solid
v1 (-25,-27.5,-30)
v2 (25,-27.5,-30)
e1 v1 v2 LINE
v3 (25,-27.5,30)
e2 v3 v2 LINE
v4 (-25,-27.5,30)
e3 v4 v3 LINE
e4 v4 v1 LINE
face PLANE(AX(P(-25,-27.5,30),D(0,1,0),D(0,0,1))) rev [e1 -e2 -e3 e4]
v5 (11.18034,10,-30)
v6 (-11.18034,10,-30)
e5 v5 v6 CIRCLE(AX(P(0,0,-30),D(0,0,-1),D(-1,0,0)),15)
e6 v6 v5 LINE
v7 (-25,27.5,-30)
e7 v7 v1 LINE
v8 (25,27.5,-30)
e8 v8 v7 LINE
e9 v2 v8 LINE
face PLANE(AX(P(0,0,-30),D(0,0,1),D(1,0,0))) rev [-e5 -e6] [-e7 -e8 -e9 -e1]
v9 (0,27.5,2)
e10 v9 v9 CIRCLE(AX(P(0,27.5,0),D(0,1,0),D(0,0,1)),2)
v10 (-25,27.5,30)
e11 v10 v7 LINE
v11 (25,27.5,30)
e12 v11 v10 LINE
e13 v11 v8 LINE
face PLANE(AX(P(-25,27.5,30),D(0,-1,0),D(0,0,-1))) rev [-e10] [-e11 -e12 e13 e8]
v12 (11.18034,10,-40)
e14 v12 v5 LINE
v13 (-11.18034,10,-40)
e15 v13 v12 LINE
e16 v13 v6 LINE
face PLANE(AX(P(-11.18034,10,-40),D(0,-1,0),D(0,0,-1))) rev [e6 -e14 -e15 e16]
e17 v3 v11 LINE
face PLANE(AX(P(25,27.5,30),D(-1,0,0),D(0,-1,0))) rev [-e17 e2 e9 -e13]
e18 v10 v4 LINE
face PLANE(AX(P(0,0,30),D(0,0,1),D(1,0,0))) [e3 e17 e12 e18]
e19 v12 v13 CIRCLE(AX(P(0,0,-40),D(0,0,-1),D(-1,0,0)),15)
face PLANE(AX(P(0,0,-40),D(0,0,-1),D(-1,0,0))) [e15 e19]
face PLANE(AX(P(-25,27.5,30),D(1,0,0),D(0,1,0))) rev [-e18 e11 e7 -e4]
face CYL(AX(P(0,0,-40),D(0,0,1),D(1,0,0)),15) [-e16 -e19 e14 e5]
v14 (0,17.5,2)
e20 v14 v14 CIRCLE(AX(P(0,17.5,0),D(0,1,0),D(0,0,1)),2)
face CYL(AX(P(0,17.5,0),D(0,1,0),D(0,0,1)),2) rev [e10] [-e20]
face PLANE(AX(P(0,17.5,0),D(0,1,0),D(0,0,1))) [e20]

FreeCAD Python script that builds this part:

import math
import FreeCAD as App
import Part
import Sketcher

V = App.Vector

doc = App.newDocument("Part")
body = doc.addObject("PartDesign::Body", "Body")

sketch1 = body.newObject("Sketcher::SketchObject", "Sketch")
sketch1.AttachmentSupport = (doc.getObject("XY_Plane"), [""])
sketch1.MapMode = "FlatFace"
sketch1.addGeometry(Part.LineSegment(V(-25, 28, 0), V(-25, -28, 0)), False)
sketch1.addGeometry(Part.LineSegment(V(-25, -28, 0), V(25, -28, 0)), False)
sketch1.addGeometry(Part.LineSegment(V(25, -28, 0), V(25, 28, 0)), False)
sketch1.addGeometry(Part.LineSegment(V(25, 28, 0), V(-25, 28, 0)), False)
sketch1.addConstraint(Sketcher.Constraint("Coincident", 0, 2, 1, 1))
sketch1.addConstraint(Sketcher.Constraint("Coincident", 1, 2, 2, 1))
sketch1.addConstraint(Sketcher.Constraint("Coincident", 2, 2, 3, 1))
sketch1.addConstraint(Sketcher.Constraint("Coincident", 3, 2, 0, 1))
sketch1.addConstraint(Sketcher.Constraint("Vertical", 0))
sketch1.addConstraint(Sketcher.Constraint("Horizontal", 1))
sketch1.addConstraint(Sketcher.Constraint("Vertical", 2))
sketch1.addConstraint(Sketcher.Constraint("Horizontal", 3))
sketch1.addConstraint(Sketcher.Constraint("Symmetric", 0, 2, 2, 2, -1, 1))
sketch1.addConstraint(Sketcher.Constraint("DistanceX", 1, 1, 1, 2, 50.0))
sketch1.addConstraint(Sketcher.Constraint("DistanceY", 0, 2, 0, 1, 55.0))
pad1 = body.newObject("PartDesign::Pad", "Pad")
pad1.Profile = sketch1
pad1.Length = 60
pad1.Midplane = True

sketch2 = body.newObject("Sketcher::SketchObject", "Sketch001")
sketch2.AttachmentSupport = (doc.getObject("XY_Plane"), [""])
sketch2.MapMode = "FlatFace"
sketch2.AttachmentOffset = App.Placement(V(0, 0, -30), App.Rotation())
sketch2.addGeometry(Part.LineSegment(V(-11, 10, 0), V(11, 10, 0)), False)
sketch2.addGeometry(Part.ArcOfCircle(Part.Circle(V(0, 0, 0), V(0, 0, 1), 15), math.radians(138), math.radians(402)), False)
sketch2.addConstraint(Sketcher.Constraint("Coincident", 0, 1, 1, 1))
sketch2.addConstraint(Sketcher.Constraint("Coincident", 1, 2, 0, 2))
sketch2.addConstraint(Sketcher.Constraint("Horizontal", 0))
sketch2.addConstraint(Sketcher.Constraint("Coincident", 1, 3, -1, 1))
sketch2.addConstraint(Sketcher.Constraint("Radius", 1, 15.0))
sketch2.addConstraint(Sketcher.Constraint("DistanceY", -1, 1, 0, 1, 10.0))
pad2 = body.newObject("PartDesign::Pad", "Pad001")
pad2.Profile = sketch2
pad2.Length = 10
pad2.Reversed = True

sketch3 = body.newObject("Sketcher::SketchObject", "Sketch002")
sketch3.AttachmentSupport = (doc.getObject("XZ_Plane"), [""])
sketch3.MapMode = "FlatFace"
sketch3.AttachmentOffset = App.Placement(V(0, 0, -27.5), App.Rotation())
sketch3.addGeometry(Part.Circle(V(0, 0, 0), V(0, 0, 1), 2), False)
sketch3.addConstraint(Sketcher.Constraint("Coincident", 0, 3, -1, 1))
sketch3.addConstraint(Sketcher.Constraint("Diameter", 0, 4.0))
pocket1 = body.newObject("PartDesign::Pocket", "Pocket")
pocket1.Profile = sketch3
pocket1.Length = 10
pocket1.Reversed = True

doc.recompute()
